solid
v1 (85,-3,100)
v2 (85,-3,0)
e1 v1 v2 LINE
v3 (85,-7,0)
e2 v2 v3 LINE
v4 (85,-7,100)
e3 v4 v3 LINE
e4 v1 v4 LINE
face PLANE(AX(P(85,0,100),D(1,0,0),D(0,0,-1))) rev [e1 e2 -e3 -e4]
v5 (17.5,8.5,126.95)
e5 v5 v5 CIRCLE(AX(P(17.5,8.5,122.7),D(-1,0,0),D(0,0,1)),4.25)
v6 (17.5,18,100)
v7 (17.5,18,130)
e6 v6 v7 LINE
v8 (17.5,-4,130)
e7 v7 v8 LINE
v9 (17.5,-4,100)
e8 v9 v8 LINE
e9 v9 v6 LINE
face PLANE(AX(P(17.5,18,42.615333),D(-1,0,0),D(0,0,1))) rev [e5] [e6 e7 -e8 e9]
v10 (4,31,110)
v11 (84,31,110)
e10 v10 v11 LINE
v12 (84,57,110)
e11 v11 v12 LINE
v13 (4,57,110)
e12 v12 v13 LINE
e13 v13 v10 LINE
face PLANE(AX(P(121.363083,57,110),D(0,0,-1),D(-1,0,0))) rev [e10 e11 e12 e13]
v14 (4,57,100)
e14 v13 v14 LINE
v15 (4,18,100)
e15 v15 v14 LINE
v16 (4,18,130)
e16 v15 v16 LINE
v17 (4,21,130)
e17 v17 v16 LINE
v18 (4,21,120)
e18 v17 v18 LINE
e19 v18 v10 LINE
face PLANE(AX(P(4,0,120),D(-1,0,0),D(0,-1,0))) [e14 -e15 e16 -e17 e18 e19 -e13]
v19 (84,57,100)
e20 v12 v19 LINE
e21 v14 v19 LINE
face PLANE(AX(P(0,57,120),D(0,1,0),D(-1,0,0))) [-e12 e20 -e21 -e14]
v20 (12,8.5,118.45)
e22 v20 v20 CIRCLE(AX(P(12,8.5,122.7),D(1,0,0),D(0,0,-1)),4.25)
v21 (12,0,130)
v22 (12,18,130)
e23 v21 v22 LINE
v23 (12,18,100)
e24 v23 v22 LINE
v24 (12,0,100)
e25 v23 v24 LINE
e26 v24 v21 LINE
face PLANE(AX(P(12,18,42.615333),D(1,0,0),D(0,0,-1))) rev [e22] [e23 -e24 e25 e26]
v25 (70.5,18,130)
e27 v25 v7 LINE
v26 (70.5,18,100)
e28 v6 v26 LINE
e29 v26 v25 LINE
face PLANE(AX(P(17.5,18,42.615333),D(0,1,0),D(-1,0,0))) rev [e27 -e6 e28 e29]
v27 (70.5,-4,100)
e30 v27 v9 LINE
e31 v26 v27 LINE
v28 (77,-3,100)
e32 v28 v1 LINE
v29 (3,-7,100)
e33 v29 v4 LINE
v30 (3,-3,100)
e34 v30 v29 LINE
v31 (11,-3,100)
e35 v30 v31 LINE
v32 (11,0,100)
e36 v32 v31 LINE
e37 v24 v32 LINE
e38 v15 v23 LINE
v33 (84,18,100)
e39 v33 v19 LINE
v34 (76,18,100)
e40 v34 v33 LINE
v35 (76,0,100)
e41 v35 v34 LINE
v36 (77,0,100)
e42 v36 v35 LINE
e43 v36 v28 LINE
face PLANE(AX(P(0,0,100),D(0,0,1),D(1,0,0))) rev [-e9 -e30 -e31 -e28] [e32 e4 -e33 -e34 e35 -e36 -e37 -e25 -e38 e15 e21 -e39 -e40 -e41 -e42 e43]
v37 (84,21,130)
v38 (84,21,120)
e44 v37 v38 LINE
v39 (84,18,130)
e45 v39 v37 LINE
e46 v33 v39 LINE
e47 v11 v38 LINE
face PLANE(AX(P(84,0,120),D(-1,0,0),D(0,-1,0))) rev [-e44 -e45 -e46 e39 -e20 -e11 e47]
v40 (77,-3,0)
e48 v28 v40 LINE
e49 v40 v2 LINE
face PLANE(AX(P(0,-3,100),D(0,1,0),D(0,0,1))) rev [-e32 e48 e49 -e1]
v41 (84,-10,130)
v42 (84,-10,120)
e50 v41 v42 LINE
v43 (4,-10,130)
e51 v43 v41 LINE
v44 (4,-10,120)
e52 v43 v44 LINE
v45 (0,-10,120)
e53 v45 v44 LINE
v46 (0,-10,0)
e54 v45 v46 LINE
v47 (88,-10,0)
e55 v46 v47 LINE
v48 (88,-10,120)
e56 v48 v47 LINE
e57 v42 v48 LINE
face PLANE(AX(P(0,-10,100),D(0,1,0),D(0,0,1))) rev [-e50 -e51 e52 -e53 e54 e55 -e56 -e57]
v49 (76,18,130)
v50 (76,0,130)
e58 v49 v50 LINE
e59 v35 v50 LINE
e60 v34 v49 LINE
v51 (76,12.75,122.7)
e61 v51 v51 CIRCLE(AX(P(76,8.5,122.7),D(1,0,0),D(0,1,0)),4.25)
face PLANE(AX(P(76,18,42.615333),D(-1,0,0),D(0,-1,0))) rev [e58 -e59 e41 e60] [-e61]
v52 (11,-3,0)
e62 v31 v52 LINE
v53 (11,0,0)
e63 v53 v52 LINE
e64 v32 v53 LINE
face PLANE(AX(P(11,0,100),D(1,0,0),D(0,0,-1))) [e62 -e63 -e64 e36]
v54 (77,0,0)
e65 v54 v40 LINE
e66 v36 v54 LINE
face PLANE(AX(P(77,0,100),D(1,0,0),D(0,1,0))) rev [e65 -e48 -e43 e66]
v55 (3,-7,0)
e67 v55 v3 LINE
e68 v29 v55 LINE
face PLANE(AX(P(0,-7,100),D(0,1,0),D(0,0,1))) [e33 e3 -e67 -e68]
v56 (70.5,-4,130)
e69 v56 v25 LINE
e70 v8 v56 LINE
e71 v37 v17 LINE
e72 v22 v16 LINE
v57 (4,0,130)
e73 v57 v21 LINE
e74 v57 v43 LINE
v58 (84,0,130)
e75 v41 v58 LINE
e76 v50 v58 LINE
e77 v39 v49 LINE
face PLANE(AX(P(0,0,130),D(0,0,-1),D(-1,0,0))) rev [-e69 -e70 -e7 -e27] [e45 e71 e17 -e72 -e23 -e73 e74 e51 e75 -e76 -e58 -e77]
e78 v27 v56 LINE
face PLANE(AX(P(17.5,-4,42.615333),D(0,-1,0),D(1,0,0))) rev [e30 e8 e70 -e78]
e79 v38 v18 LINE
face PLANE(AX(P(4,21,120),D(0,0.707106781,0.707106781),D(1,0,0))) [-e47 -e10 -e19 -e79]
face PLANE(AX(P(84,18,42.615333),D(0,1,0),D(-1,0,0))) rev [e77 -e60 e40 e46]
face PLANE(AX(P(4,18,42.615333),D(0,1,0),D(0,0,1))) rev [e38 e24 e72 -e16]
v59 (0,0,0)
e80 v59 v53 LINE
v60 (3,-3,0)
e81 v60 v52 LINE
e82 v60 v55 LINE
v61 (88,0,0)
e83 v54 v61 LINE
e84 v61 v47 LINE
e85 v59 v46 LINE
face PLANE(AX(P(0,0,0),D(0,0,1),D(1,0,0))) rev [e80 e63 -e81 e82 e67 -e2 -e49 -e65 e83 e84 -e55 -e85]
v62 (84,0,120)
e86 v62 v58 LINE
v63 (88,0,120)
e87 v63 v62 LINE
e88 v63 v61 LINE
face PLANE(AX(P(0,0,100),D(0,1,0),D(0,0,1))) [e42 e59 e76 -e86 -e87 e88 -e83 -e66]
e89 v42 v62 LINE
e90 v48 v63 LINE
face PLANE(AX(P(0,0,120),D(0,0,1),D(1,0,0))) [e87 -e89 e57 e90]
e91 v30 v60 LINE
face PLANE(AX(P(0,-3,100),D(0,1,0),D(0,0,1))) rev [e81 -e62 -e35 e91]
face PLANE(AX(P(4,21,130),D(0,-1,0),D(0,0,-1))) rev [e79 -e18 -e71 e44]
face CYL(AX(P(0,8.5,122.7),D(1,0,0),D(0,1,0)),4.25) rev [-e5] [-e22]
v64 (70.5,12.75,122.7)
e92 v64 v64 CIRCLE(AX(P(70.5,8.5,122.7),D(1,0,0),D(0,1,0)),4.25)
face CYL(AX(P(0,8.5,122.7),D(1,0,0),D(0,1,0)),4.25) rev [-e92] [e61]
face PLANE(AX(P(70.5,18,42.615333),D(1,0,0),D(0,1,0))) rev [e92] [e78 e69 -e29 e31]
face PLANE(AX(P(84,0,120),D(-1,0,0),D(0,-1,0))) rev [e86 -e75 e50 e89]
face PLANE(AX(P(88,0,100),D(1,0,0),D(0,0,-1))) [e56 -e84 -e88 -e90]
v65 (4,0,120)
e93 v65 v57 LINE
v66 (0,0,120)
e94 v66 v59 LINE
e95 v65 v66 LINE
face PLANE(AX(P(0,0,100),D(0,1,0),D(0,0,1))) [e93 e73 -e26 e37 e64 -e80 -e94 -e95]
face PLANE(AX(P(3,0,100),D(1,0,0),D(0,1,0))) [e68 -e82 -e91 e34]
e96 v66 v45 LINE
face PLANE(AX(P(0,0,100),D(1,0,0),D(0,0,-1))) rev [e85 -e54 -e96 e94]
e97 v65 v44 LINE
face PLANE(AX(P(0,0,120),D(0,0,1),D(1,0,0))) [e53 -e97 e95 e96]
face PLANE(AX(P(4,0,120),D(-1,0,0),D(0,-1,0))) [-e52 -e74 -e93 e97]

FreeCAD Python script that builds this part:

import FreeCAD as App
import Part
import Sketcher

V = App.Vector
Q = App.Units.Quantity


def edges_at(feature, points):
    """Names of the edges that pass closest to the given points."""
    edges = feature.Shape.Edges
    near = lambda p: min(range(len(edges)), key=lambda i: edges[i].distToShape(Part.Vertex(*p))[0])
    return sorted({f"Edge{near(p) + 1}" for p in points})


def add_polygon(sketch, points):
    """Adds a closed chain of lines whose ends are joined by coincident constraints."""
    first, n = sketch.GeometryCount, len(points)
    for a, b in zip(points, points[1:] + points[:1]):
        sketch.addGeometry(Part.LineSegment(App.Vector(*a, 0), App.Vector(*b, 0)), False)
    for i in range(n):
        sketch.addConstraint(Sketcher.Constraint("Coincident", first + i, 2, first + (i + 1) % n, 1))

doc = App.newDocument("Part")
params = doc.addObject("Spreadsheet::Sheet", "Params")
for row, (alias, value) in enumerate([
    ("sketch1_width", "11 mm"),
    ("sketch1_width2", "88 mm"),
    ("sketch1_width3", "8 mm"),
    ("sketch1_height", "10 mm"),
    ("sketch1_height2", "3 mm"),
    ("pad1_length", "100 mm"),
    ("sketch2_width", "80 mm"),
    ("sketch2_width2", "4 mm"),
    ("sketch2_height", "57 mm"),
    ("sketch2_height2", "10 mm"),
    ("pad2_length", "20 mm"),
    ("sketch3_width", "80 mm"),
    ("sketch3_height", "31 mm"),
    ("pad3_length", "10 mm"),
    ("sketch4_width", "80 mm"),
    ("sketch4_height", "31 mm"),
    ("pad4_length", "20 mm"),
    ("sketch5_width", "53 mm"),
    ("sketch5_width2", "8 mm"),
    ("sketch5_height", "22 mm"),
    ("sketch5_height2", "18 mm"),
    ("pocket1_length", "30 mm"),
    ("sketch6_width", "36 mm"),
    ("sketch6_height", "10 mm"),
    ("pocket2_length", "80 mm"),
    ("sketch7_diameter", "8.5 mm"),
    ("chamfer_size", "10 mm"),
], start=1):
    params.set(f"A{row}", alias)
    params.set(f"B{row}", "=" + value)
    params.setAlias(f"B{row}", alias)

body = doc.addObject("PartDesign::Body", "Body")

# Sketch on XY plane
sketch1 = doc.addObject("Sketcher::SketchObject", "Sketch")
body.addObject(sketch1)
sketch1.AttachmentSupport = (doc.XY_Plane, [""])
sketch1.MapMode = "FlatFace"
add_polygon(sketch1, [(11, 0), (0, 0), (0, -10), (88, -10), (88, 0), (77, 0), (77, -3), (85, -3), (85, -7), (3, -7), (3, -3), (11, -3)])  # lines 0-11
sketch1.addConstraint([
    Sketcher.Constraint("Horizontal", 0),
    Sketcher.Constraint("Vertical", 1),
    Sketcher.Constraint("Horizontal", 2),
    Sketcher.Constraint("Vertical", 3),
    Sketcher.Constraint("Horizontal", 4),
    Sketcher.Constraint("Vertical", 5),
    Sketcher.Constraint("Horizontal", 6),
    Sketcher.Constraint("Vertical", 7),
    Sketcher.Constraint("Horizontal", 8),
    Sketcher.Constraint("Vertical", 9),
    Sketcher.Constraint("Horizontal", 10),
    Sketcher.Constraint("Vertical", 11),
    Sketcher.Constraint("Coincident", 0, 2, -1, 1),
    Sketcher.Constraint("PointOnObject", 3, 2, -1),
    Sketcher.Constraint("Horizontal", 6, 2, 9, 2),
    Sketcher.Constraint("Equal", 0, 4),
    Sketcher.Constraint("Equal", 6, 10),
    Sketcher.Constraint("DistanceX", 0, 2, 0, 1, Q("11 mm")),
    Sketcher.Constraint("DistanceX", 2, 1, 2, 2, Q("88 mm")),
    Sketcher.Constraint("DistanceX", 6, 1, 6, 2, Q("8 mm")),
    Sketcher.Constraint("DistanceY", 1, 2, 1, 1, Q("10 mm")),
    Sketcher.Constraint("DistanceY", 5, 2, 5, 1, Q("3 mm")),
    Sketcher.Constraint("DistanceY", 7, 2, 7, 1, Q("4 mm")),
])
sketch1.setExpression("Constraints[29]", "Params.sketch1_width")
sketch1.setExpression("Constraints[30]", "Params.sketch1_width2")
sketch1.setExpression("Constraints[31]", "Params.sketch1_width3")
sketch1.setExpression("Constraints[32]", "Params.sketch1_height")
sketch1.setExpression("Constraints[33]", "Params.sketch1_height2")
pad1 = doc.addObject("PartDesign::Pad", "Pad")
body.addObject(pad1)
pad1.Profile = sketch1
pad1.setExpression("Length", "Params.pad1_length")

# Sketch on XY plane
sketch2 = doc.addObject("Sketcher::SketchObject", "Sketch001")
body.addObject(sketch2)
sketch2.AttachmentSupport = (doc.XY_Plane, [""])
sketch2.MapMode = "FlatFace"
sketch2.AttachmentOffset = App.Placement(V(0, 0, 100), App.Rotation())
add_polygon(sketch2, [(84, 0), (84, 57), (4, 57), (4, 0), (0, 0), (0, -10), (88, -10), (88, 0)])  # lines 0-7
sketch2.addConstraint([
    Sketcher.Constraint("Vertical", 0),
    Sketcher.Constraint("Horizontal", 1),
    Sketcher.Constraint("Vertical", 2),
    Sketcher.Constraint("Horizontal", 3),
    Sketcher.Constraint("Vertical", 4),
    Sketcher.Constraint("Horizontal", 5),
    Sketcher.Constraint("Vertical", 6),
    Sketcher.Constraint("Horizontal", 7),
    Sketcher.Constraint("Coincident", 3, 2, -1, 1),
    Sketcher.Constraint("PointOnObject", 6, 2, -1),
    Sketcher.Constraint("Equal", 3, 7),
    Sketcher.Constraint("DistanceX", 1, 2, 1, 1, Q("80 mm")),
    Sketcher.Constraint("DistanceX", 3, 2, 3, 1, Q("4 mm")),
    Sketcher.Constraint("DistanceY", 0, 1, 0, 2, Q("57 mm")),
    Sketcher.Constraint("DistanceY", 4, 2, 4, 1, Q("10 mm")),
])
sketch2.setExpression("Constraints[19]", "Params.sketch2_width")
sketch2.setExpression("Constraints[20]", "Params.sketch2_width2")
sketch2.setExpression("Constraints[21]", "Params.sketch2_height")
sketch2.setExpression("Constraints[22]", "Params.sketch2_height2")
pad2 = doc.addObject("PartDesign::Pad", "Pad001")
body.addObject(pad2)
pad2.Profile = sketch2
pad2.setExpression("Length", "Params.pad2_length")

# Sketch on XY plane
sketch3 = doc.addObject("Sketcher::SketchObject", "Sketch002")
body.addObject(sketch3)
sketch3.AttachmentSupport = (doc.XY_Plane, [""])
sketch3.MapMode = "FlatFace"
sketch3.AttachmentOffset = App.Placement(V(0, 0, 120), App.Rotation())
add_polygon(sketch3, [(4, 21), (4, -10), (84, -10), (84, 21)])  # lines 0-3
sketch3.addConstraint([
    Sketcher.Constraint("Vertical", 0),
    Sketcher.Constraint("Horizontal", 1),
    Sketcher.Constraint("Vertical", 2),
    Sketcher.Constraint("Horizontal", 3),
    Sketcher.Constraint("DistanceX", 1, 1, 1, 2, Q("80 mm")),
    Sketcher.Constraint("DistanceY", 0, 2, 0, 1, Q("31 mm")),
    Sketcher.Constraint("DistanceX", -1, 1, 0, 2, Q("4 mm")),
    Sketcher.Constraint("DistanceY", 0, 2, -1, 1, Q("10 mm")),
])
sketch3.setExpression("Constraints[8]", "Params.sketch3_width")
sketch3.setExpression("Constraints[9]", "Params.sketch3_height")
pad3 = doc.addObject("PartDesign::Pad", "Pad002")
body.addObject(pad3)
pad3.Profile = sketch3
pad3.setExpression("Length", "Params.pad3_length")

# Sketch on XY plane
sketch4 = doc.addObject("Sketcher::SketchObject", "Sketch003")
body.addObject(sketch4)
sketch4.AttachmentSupport = (doc.XY_Plane, [""])
sketch4.MapMode = "FlatFace"
sketch4.AttachmentOffset = App.Placement(V(0, 0, 120), App.Rotation())
add_polygon(sketch4, [(4, 21), (4, -10), (84, -10), (84, 21)])  # lines 0-3
sketch4.addConstraint([
    Sketcher.Constraint("Vertical", 0),
    Sketcher.Constraint("Horizontal", 1),
    Sketcher.Constraint("Vertical", 2),
    Sketcher.Constraint("Horizontal", 3),
    Sketcher.Constraint("DistanceX", 1, 1, 1, 2, Q("80 mm")),
    Sketcher.Constraint("DistanceY", 0, 2, 0, 1, Q("31 mm")),
    Sketcher.Constraint("DistanceX", -1, 1, 0, 2, Q("4 mm")),
    Sketcher.Constraint("DistanceY", 0, 2, -1, 1, Q("10 mm")),
])
sketch4.setExpression("Constraints[8]", "Params.sketch4_width")
sketch4.setExpression("Constraints[9]", "Params.sketch4_height")
pad4 = doc.addObject("PartDesign::Pad", "Pad003")
body.addObject(pad4)
pad4.Profile = sketch4
pad4.setExpression("Length", "Params.pad4_length")
pad4.Reversed = True

# Sketch on XY plane
sketch5 = doc.addObject("Sketcher::SketchObject", "Sketch004")
body.addObject(sketch5)
sketch5.AttachmentSupport = (doc.XY_Plane, [""])
sketch5.MapMode = "FlatFace"
sketch5.AttachmentOffset = App.Placement(V(0, 0, 130), App.Rotation())
add_polygon(sketch5, [(18, 18), (18, -4), (70, -4), (70, 18)])  # lines 0-3
add_polygon(sketch5, [(4, 18), (4, 0), (12, 0), (12, 18)])  # lines 4-7
add_polygon(sketch5, [(76, 18), (76, 0), (84, 0), (84, 18)])  # lines 8-11
sketch5.addConstraint([
    Sketcher.Constraint("Vertical", 0),
    Sketcher.Constraint("Horizontal", 1),
    Sketcher.Constraint("Vertical", 2),
    Sketcher.Constraint("Horizontal", 3),
    Sketcher.Constraint("Vertical", 4),
    Sketcher.Constraint("Horizontal", 5),
    Sketcher.Constraint("Vertical", 6),
    Sketcher.Constraint("Horizontal", 7),
    Sketcher.Constraint("Vertical", 8),
    Sketcher.Constraint("Horizontal", 9),
    Sketcher.Constraint("Vertical", 10),
    Sketcher.Constraint("Horizontal", 11),
    Sketcher.Constraint("PointOnObject", 4, 2, -1),
    Sketcher.Constraint("PointOnObject", 8, 2, -1),
    Sketcher.Constraint("Horizontal", 3, 2, 6, 2),
    Sketcher.Constraint("Horizontal", 7, 2, 10, 2),
    Sketcher.Constraint("Equal", 7, 9),
    Sketcher.Constraint("DistanceX", 1, 1, 1, 2, Q("53 mm")),
    Sketcher.Constraint("DistanceX", 5, 1, 5, 2, Q("8 mm")),
    Sketcher.Constraint("DistanceY", 0, 2, 0, 1, Q("22 mm")),
    Sketcher.Constraint("DistanceY", 4, 2, 4, 1, Q("18 mm")),
    Sketcher.Constraint("DistanceX", -1, 1, 4, 2, Q("4 mm")),
    Sketcher.Constraint("DistanceX", -1, 1, 8, 2, Q("76 mm")),
    Sketcher.Constraint("DistanceX", -1, 1, 0, 2, Q("17.5 mm")),
])
sketch5.setExpression("Constraints[29]", "Params.sketch5_width")
sketch5.setExpression("Constraints[30]", "Params.sketch5_width2")
sketch5.setExpression("Constraints[31]", "Params.sketch5_height")
sketch5.setExpression("Constraints[32]", "Params.sketch5_height2")
pocket1 = doc.addObject("PartDesign::Pocket", "Pocket")
body.addObject(pocket1)
pocket1.Profile = sketch5
pocket1.setExpression("Length", "Params.pocket1_length")

# Sketch on YZ plane
sketch6 = doc.addObject("Sketcher::SketchObject", "Sketch005")
body.addObject(sketch6)
sketch6.AttachmentSupport = (doc.YZ_Plane, [""])
sketch6.MapMode = "FlatFace"
sketch6.AttachmentOffset = App.Placement(V(0, 0, 4), App.Rotation())
add_polygon(sketch6, [(57, 110), (21, 110), (21, 120), (57, 120)])  # lines 0-3
sketch6.addConstraint([
    Sketcher.Constraint("Horizontal", 0),
    Sketcher.Constraint("Vertical", 1),
    Sketcher.Constraint("Horizontal", 2),
    Sketcher.Constraint("Vertical", 3),
    Sketcher.Constraint("DistanceX", 0, 2, 0, 1, Q("36 mm")),
    Sketcher.Constraint("DistanceY", 1, 1, 1, 2, Q("10 mm")),
    Sketcher.Constraint("DistanceX", -1, 1, 0, 2, Q("21 mm")),
    Sketcher.Constraint("DistanceY", -1, 1, 0, 2, Q("110 mm")),
])
sketch6.setExpression("Constraints[8]", "Params.sketch6_width")
sketch6.setExpression("Constraints[9]", "Params.sketch6_height")
pocket2 = doc.addObject("PartDesign::Pocket", "Pocket001")
body.addObject(pocket2)
pocket2.Profile = sketch6
pocket2.setExpression("Length", "Params.pocket2_length")
pocket2.Reversed = True

# Sketch on YZ plane
sketch7 = doc.addObject("Sketcher::SketchObject", "Sketch006")
body.addObject(sketch7)
sketch7.AttachmentSupport = (doc.YZ_Plane, [""])
sketch7.MapMode = "FlatFace"
sketch7.AttachmentOffset = App.Placement(V(0, 0, 76), App.Rotation())
sketch7.addGeometry(Part.Circle(V(8.5, 122.7, 0), V(0, 0, 1), 4.2), False)
sketch7.addConstraint([
    Sketcher.Constraint("Diameter", 0, Q("8.5 mm")),
    Sketcher.Constraint("DistanceX", -1, 1, 0, 3, Q("8.5 mm")),
    Sketcher.Constraint("DistanceY", -1, 1, 0, 3, Q("122.7 mm")),
])
sketch7.setExpression("Constraints[0]", "Params.sketch7_diameter")
pocket3 = doc.addObject("PartDesign::Pocket", "Pocket002")
body.addObject(pocket3)
pocket3.Profile = sketch7
pocket3.Type = "ThroughAll"
doc.recompute()

chamfer = doc.addObject("PartDesign::Chamfer", "Chamfer")
body.addObject(chamfer)
chamfer.Base = (pocket3, edges_at(pocket3, [(44, 21, 110)]))
chamfer.setExpression("Size", "Params.chamfer_size")

doc.recompute()
